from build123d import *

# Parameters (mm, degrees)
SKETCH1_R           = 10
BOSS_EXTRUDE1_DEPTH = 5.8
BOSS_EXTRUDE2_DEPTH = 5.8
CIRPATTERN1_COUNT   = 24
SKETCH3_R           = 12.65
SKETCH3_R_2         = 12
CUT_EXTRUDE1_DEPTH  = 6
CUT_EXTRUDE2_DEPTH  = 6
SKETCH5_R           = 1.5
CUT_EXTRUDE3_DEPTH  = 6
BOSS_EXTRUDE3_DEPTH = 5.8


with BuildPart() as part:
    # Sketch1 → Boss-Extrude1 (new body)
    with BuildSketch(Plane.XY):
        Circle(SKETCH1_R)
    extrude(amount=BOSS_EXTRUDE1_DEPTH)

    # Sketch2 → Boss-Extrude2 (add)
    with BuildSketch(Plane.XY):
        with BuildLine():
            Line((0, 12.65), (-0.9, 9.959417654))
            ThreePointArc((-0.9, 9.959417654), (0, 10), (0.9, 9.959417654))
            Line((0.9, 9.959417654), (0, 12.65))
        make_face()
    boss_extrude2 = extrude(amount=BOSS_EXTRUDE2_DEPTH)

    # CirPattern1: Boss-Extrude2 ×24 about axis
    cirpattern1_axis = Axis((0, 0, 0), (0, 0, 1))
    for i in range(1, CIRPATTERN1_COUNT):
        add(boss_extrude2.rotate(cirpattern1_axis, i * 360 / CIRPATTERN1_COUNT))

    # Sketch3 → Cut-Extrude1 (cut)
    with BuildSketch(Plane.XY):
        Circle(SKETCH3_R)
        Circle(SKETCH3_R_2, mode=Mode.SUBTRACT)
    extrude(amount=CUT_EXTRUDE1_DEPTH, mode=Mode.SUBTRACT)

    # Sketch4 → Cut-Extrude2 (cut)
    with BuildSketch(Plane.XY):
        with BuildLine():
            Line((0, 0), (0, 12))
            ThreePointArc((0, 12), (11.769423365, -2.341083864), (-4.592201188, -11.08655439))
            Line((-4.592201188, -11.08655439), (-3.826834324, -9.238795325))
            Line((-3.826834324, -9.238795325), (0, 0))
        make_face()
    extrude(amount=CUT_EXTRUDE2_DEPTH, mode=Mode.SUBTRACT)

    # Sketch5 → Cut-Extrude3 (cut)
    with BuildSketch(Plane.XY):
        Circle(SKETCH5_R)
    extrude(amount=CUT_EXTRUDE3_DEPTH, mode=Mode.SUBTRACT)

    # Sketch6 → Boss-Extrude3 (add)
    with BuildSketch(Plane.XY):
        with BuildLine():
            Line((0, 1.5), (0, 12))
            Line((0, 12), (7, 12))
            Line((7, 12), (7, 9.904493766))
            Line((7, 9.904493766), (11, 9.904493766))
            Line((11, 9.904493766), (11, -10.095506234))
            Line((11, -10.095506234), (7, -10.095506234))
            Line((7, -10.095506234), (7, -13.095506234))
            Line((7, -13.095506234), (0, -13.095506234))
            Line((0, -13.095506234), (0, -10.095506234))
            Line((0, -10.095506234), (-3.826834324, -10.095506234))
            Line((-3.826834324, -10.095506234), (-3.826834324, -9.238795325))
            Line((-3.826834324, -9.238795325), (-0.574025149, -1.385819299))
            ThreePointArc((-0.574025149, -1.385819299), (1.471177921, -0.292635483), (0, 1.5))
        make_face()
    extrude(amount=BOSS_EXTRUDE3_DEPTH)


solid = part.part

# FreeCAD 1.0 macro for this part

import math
import FreeCAD as App
import Part
import Sketcher
Q = App.Units.Quantity

doc = App.newDocument("Part")
body = doc.addObject("PartDesign::Body", "Body")

# Sketch on XY plane
sketch1 = body.newObject("Sketcher::SketchObject", "Sketch")
sketch1.AttachmentSupport = (doc.getObject("XY_Plane"), [""])
sketch1.MapMode = "FlatFace"
sketch1.addGeometry(Part.Circle(App.Vector(0, 0, 0), App.Vector(0, 0, 1), 10), False)
sketch1.addConstraint(Sketcher.Constraint("Coincident", 0, 3, -1, 1))
sketch1.addConstraint(Sketcher.Constraint("Diameter", 0, 20.0))
pad1 = body.newObject("PartDesign::Pad", "Pad")
pad1.Profile = sketch1
pad1.Length = 5.8

# Sketch on XY plane
sketch2 = body.newObject("Sketcher::SketchObject", "Sketch001")
sketch2.AttachmentSupport = (doc.getObject("XY_Plane"), [""])
sketch2.MapMode = "FlatFace"
sketch2.addGeometry(Part.LineSegment(App.Vector(0, 12.65, 0), App.Vector(-0.9, 9.959418, 0)), False)
sketch2.addGeometry(Part.ArcOfCircle(Part.Circle(App.Vector(0, 0, 0), App.Vector(0, 0, 1), 10), math.radians(84.836393), math.radians(95.163607)), False)
sketch2.addGeometry(Part.LineSegment(App.Vector(0.9, 9.959418, 0), App.Vector(0, 12.65, 0)), False)
sketch2.addConstraint(Sketcher.Constraint("Coincident", 0, 2, 1, 2))
sketch2.addConstraint(Sketcher.Constraint("Coincident", 1, 1, 2, 1))
sketch2.addConstraint(Sketcher.Constraint("Coincident", 2, 2, 0, 1))
sketch2.addConstraint(Sketcher.Constraint("Coincident", 1, 3, -1, 1))
sketch2.addConstraint(Sketcher.Constraint("PointOnObject", 2, 2, -2))
sketch2.addConstraint(Sketcher.Constraint("Horizontal", 0, 2, 1, 1))
sketch2.addConstraint(Sketcher.Constraint("Radius", 1, 10.0))
sketch2.addConstraint(Sketcher.Constraint("DistanceX", 0, 2, -1, 1, 0.9))
sketch2.addConstraint(Sketcher.Constraint("DistanceY", -1, 1, 2, 2, 12.65))
pad2 = body.newObject("PartDesign::Pad", "Pad001")
pad2.Profile = sketch2
pad2.Length = 5.8
doc.recompute()

polarpattern = body.newObject("PartDesign::PolarPattern", "PolarPattern")
polarpattern.Originals = [pad2]
polarpattern.Axis = (doc.getObject("Z_Axis"), [""])
polarpattern.Angle = 360
polarpattern.Occurrences = 24
body.Tip = polarpattern

# Sketch on XY plane
sketch3 = body.newObject("Sketcher::SketchObject", "Sketch002")
sketch3.AttachmentSupport = (doc.getObject("XY_Plane"), [""])
sketch3.MapMode = "FlatFace"
sketch3.addGeometry(Part.Circle(App.Vector(0, 0, 0), App.Vector(0, 0, 1), 12.65), False)
sketch3.addGeometry(Part.Circle(App.Vector(0, 0, 0), App.Vector(0, 0, 1), 12), False)
sketch3.addConstraint(Sketcher.Constraint("Coincident", 0, 3, -1, 1))
sketch3.addConstraint(Sketcher.Constraint("Coincident", 1, 3, -1, 1))
sketch3.addConstraint(Sketcher.Constraint("Diameter", 1, 24.0))
sketch3.addConstraint(Sketcher.Constraint("Diameter", 0, 25.3))
pocket1 = body.newObject("PartDesign::Pocket", "Pocket")
pocket1.Profile = sketch3
pocket1.Length = 6
pocket1.Reversed = True

# Sketch on XY plane
sketch4 = body.newObject("Sketcher::SketchObject", "Sketch003")
sketch4.AttachmentSupport = (doc.getObject("XY_Plane"), [""])
sketch4.MapMode = "FlatFace"
sketch4.addGeometry(Part.LineSegment(App.Vector(0, 12, 0), App.Vector(0, 0, 0)), False)
sketch4.addGeometry(Part.LineSegment(App.Vector(0, 0, 0), App.Vector(-3.826834, -9.238795, 0)), False)
sketch4.addGeometry(Part.LineSegment(App.Vector(-3.826834, -9.238795, 0), App.Vector(-4.592201, -11.086554, 0)), False)
sketch4.addGeometry(Part.ArcOfCircle(Part.Circle(App.Vector(0, 0, 0), App.Vector(0, 0, 1), 12), math.radians(-112.5), math.radians(90)), False)
sketch4.addConstraint(Sketcher.Constraint("Coincident", 0, 2, 1, 1))
sketch4.addConstraint(Sketcher.Constraint("Coincident", 1, 2, 2, 1))
sketch4.addConstraint(Sketcher.Constraint("Coincident", 2, 2, 3, 1))
sketch4.addConstraint(Sketcher.Constraint("Coincident", 3, 2, 0, 1))
sketch4.addConstraint(Sketcher.Constraint("Vertical", 0))
sketch4.addConstraint(Sketcher.Constraint("Coincident", 3, 3, -1, 1))
sketch4.addConstraint(Sketcher.Constraint("Coincident", 0, 2, -1, 1))
sketch4.addConstraint(Sketcher.Constraint("Parallel", 1, 2))
sketch4.addConstraint(Sketcher.Constraint("Radius", 3, 12.0))
sketch4.addConstraint(Sketcher.Constraint("Distance", 1, 10.0))
sketch4.addConstraint(Sketcher.Constraint("Angle", 1, Q("-112.5 deg")))
pocket2 = body.newObject("PartDesign::Pocket", "Pocket001")
pocket2.Profile = sketch4
pocket2.Length = 6
pocket2.Reversed = True

# Sketch on XY plane
sketch5 = body.newObject("Sketcher::SketchObject", "Sketch004")
sketch5.AttachmentSupport = (doc.getObject("XY_Plane"), [""])
sketch5.MapMode = "FlatFace"
sketch5.addGeometry(Part.Circle(App.Vector(0, 0, 0), App.Vector(0, 0, 1), 1.5), False)
sketch5.addConstraint(Sketcher.Constraint("Coincident", 0, 3, -1, 1))
sketch5.addConstraint(Sketcher.Constraint("Diameter", 0, 3.0))
pocket3 = body.newObject("PartDesign::Pocket", "Pocket002")
pocket3.Profile = sketch5
pocket3.Length = 6
pocket3.Reversed = True

# Sketch on XY plane
sketch6 = body.newObject("Sketcher::SketchObject", "Sketch005")
sketch6.AttachmentSupport = (doc.getObject("XY_Plane"), [""])
sketch6.MapMode = "FlatFace"
sketch6.addGeometry(Part.LineSegment(App.Vector(0, 12, 0), App.Vector(0, 1.5, 0)), False)
sketch6.addGeometry(Part.ArcOfCircle(Part.Circle(App.Vector(0, 0, 0), App.Vector(0, 0, 1), 1.5), math.radians(-112.5), math.radians(90)), False)
sketch6.addGeometry(Part.LineSegment(App.Vector(-0.574025, -1.385819, 0), App.Vector(-3.826834, -9.238795, 0)), False)
sketch6.addGeometry(Part.LineSegment(App.Vector(-3.826834, -9.238795, 0), App.Vector(-3.826834, -10.095506, 0)), False)
sketch6.addGeometry(Part.LineSegment(App.Vector(-3.826834, -10.095506, 0), App.Vector(0, -10.095506, 0)), False)
sketch6.addGeometry(Part.LineSegment(App.Vector(0, -10.095506, 0), App.Vector(0, -13.095506, 0)), False)
sketch6.addGeometry(Part.LineSegment(App.Vector(0, -13.095506, 0), App.Vector(7, -13.095506, 0)), False)
sketch6.addGeometry(Part.LineSegment(App.Vector(7, -13.095506, 0), App.Vector(7, -10.095506, 0)), False)
sketch6.addGeometry(Part.LineSegment(App.Vector(7, -10.095506, 0), App.Vector(11, -10.095506, 0)), False)
sketch6.addGeometry(Part.LineSegment(App.Vector(11, -10.095506, 0), App.Vector(11, 9.904494, 0)), False)
sketch6.addGeometry(Part.LineSegment(App.Vector(11, 9.904494, 0), App.Vector(7, 9.904494, 0)), False)
sketch6.addGeometry(Part.LineSegment(App.Vector(7, 9.904494, 0), App.Vector(7, 12, 0)), False)
sketch6.addGeometry(Part.LineSegment(App.Vector(7, 12, 0), App.Vector(0, 12, 0)), False)
sketch6.addConstraint(Sketcher.Constraint("Coincident", 0, 2, 1, 2))
sketch6.addConstraint(Sketcher.Constraint("Coincident", 1, 1, 2, 1))
sketch6.addConstraint(Sketcher.Constraint("Coincident", 2, 2, 3, 1))
sketch6.addConstraint(Sketcher.Constraint("Coincident", 3, 2, 4, 1))
sketch6.addConstraint(Sketcher.Constraint("Coincident", 4, 2, 5, 1))
sketch6.addConstraint(Sketcher.Constraint("Coincident", 5, 2, 6, 1))
sketch6.addConstraint(Sketcher.Constraint("Coincident", 6, 2, 7, 1))
sketch6.addConstraint(Sketcher.Constraint("Coincident", 7, 2, 8, 1))
sketch6.addConstraint(Sketcher.Constraint("Coincident", 8, 2, 9, 1))
sketch6.addConstraint(Sketcher.Constraint("Coincident", 9, 2, 10, 1))
sketch6.addConstraint(Sketcher.Constraint("Coincident", 10, 2, 11, 1))
sketch6.addConstraint(Sketcher.Constraint("Coincident", 11, 2, 12, 1))
sketch6.addConstraint(Sketcher.Constraint("Coincident", 12, 2, 0, 1))
sketch6.addConstraint(Sketcher.Constraint("Vertical", 0))
sketch6.addConstraint(Sketcher.Constraint("Vertical", 3))
sketch6.addConstraint(Sketcher.Constraint("Horizontal", 4))
sketch6.addConstraint(Sketcher.Constraint("Vertical", 5))
sketch6.addConstraint(Sketcher.Constraint("Horizontal", 6))
sketch6.addConstraint(Sketcher.Constraint("Vertical", 7))
sketch6.addConstraint(Sketcher.Constraint("Horizontal", 8))
sketch6.addConstraint(Sketcher.Constraint("Vertical", 9))
sketch6.addConstraint(Sketcher.Constraint("Horizontal", 10))
sketch6.addConstraint(Sketcher.Constraint("Vertical", 11))
sketch6.addConstraint(Sketcher.Constraint("Horizontal", 12))
sketch6.addConstraint(Sketcher.Constraint("Coincident", 1, 3, -1, 1))
sketch6.addConstraint(Sketcher.Constraint("PointOnObject", 0, 2, -2))
sketch6.addConstraint(Sketcher.Constraint("PointOnObject", 4, 2, -2))
sketch6.addConstraint(Sketcher.Constraint("Horizontal", 4, 2, 7, 2))
sketch6.addConstraint(Sketcher.Constraint("Vertical", 7, 2, 10, 2))
sketch6.addConstraint(Sketcher.Constraint("Radius", 1, 1.5))
sketch6.addConstraint(Sketcher.Constraint("DistanceX", 6, 1, 6, 2, 7.0))
sketch6.addConstraint(Sketcher.Constraint("DistanceX", 8, 1, 8, 2, 4.0))
sketch6.addConstraint(Sketcher.Constraint("DistanceY", 5, 2, 5, 1, 3.0))
sketch6.addConstraint(Sketcher.Constraint("DistanceY", 9, 1, 9, 2, 20.0))
sketch6.addConstraint(Sketcher.Constraint("DistanceY", 0, 2, 0, 1, 10.5))
sketch6.addConstraint(Sketcher.Constraint("Angle", 2, Q("-112.5 deg")))
sketch6.addConstraint(Sketcher.Constraint("Distance", 2, 8.5))
sketch6.addConstraint(Sketcher.Constraint("DistanceY", 3, 2, 3, 1, 0.856711))
sketch6.addConstraint(Sketcher.Constraint("DistanceX", 4, 1, 4, 2, 3.826834))
pad3 = body.newObject("PartDesign::Pad", "Pad002")
pad3.Profile = sketch6
pad3.Length = 5.8

doc.recompute()
